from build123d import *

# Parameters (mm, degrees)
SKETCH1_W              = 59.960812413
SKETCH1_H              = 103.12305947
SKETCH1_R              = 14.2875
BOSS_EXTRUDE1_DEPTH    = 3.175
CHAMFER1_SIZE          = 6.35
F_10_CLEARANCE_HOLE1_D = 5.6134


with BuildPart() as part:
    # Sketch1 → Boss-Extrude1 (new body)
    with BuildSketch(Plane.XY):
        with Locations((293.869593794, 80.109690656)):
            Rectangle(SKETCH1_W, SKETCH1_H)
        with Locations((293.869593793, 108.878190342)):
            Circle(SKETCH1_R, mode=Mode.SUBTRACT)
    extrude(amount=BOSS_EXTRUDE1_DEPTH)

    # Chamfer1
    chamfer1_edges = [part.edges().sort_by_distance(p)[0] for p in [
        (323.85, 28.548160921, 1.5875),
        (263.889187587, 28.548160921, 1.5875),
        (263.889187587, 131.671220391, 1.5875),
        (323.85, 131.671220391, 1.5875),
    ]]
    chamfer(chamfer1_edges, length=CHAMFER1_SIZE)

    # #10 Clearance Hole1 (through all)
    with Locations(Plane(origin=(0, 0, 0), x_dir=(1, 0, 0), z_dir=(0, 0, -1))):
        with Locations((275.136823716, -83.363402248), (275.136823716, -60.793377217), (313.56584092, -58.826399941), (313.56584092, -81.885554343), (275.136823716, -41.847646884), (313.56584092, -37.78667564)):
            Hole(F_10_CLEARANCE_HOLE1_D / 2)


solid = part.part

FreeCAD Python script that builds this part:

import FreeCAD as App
import Part
import Sketcher
from FreeCAD import Vector
Q = App.Units.Quantity


def edges_at(feature, points):
    """Names of the edges that pass closest to the given points."""
    edges = feature.Shape.Edges
    near = lambda p: min(range(len(edges)), key=lambda i: edges[i].distToShape(Part.Vertex(*p))[0])
    return sorted({f"Edge{near(p) + 1}" for p in points})

doc = App.newDocument("Part")
body = doc.addObject("PartDesign::Body", "Body")

# Sketch on XY plane
sketch1 = body.newObject("Sketcher::SketchObject", "Sketch")
sketch1.AttachmentSupport = (doc.getObject("XY_Plane"), [""])
sketch1.MapMode = "FlatFace"
sketch1.addGeometry([
    Part.LineSegment(Vector(264, 132, 0), Vector(264, 29, 0)),  # 0
    Part.LineSegment(Vector(264, 29, 0), Vector(324, 29, 0)),  # 1
    Part.LineSegment(Vector(324, 29, 0), Vector(324, 132, 0)),  # 2
    Part.LineSegment(Vector(324, 132, 0), Vector(264, 132, 0)),  # 3
    Part.Circle(Vector(294, 109, 0), Vector(0, 0, 1), 14),  # 4
], False)
sketch1.addConstraint([
    Sketcher.Constraint("Coincident", 0, 2, 1, 1),
    Sketcher.Constraint("Coincident", 1, 2, 2, 1),
    Sketcher.Constraint("Coincident", 2, 2, 3, 1),
    Sketcher.Constraint("Coincident", 3, 2, 0, 1),
    Sketcher.Constraint("Vertical", 0),
    Sketcher.Constraint("Horizontal", 1),
    Sketcher.Constraint("Vertical", 2),
    Sketcher.Constraint("Horizontal", 3),
    Sketcher.Constraint("Diameter", 4, Q("1.125 in")),
    Sketcher.Constraint("DistanceX", -1, 1, 1, 2, Q("12.75 in")),
    Sketcher.Constraint("DistanceY", 0, 2, 0, 1, 103.123059),
    Sketcher.Constraint("DistanceX", 1, 1, 1, 2, 59.960812),
    Sketcher.Constraint("DistanceY", -1, 1, 4, 3, 108.87819),
    Sketcher.Constraint("DistanceY", -1, 1, 0, 2, 28.548161),
    Sketcher.Constraint("DistanceX", -1, 1, 4, 3, 293.869594),
])
pad1 = body.newObject("PartDesign::Pad", "Pad")
pad1.Profile = sketch1
pad1.Length = Q("0.125 in")
doc.recompute()

chamfer = body.newObject("PartDesign::Chamfer", "Chamfer")
chamfer.Base = (pad1, edges_at(pad1, [
    (323.85, 28.548, 1.587),
    (263.889, 28.548, 1.587),
    (263.889, 131.671, 1.587),
    (323.85, 131.671, 1.587),
]))
chamfer.Size = Q("0.25 in")

# Sketch on XY plane
sketch2 = body.newObject("Sketcher::SketchObject", "Sketch001")
sketch2.AttachmentSupport = (doc.getObject("XY_Plane"), [""])
sketch2.MapMode = "FlatFace"
sketch2.addGeometry([
    Part.Circle(Vector(275.1, 83.4, 0), Vector(0, 0, 1), 2.8),  # 0
    Part.Circle(Vector(275.1, 60.8, 0), Vector(0, 0, 1), 2.8),  # 1
    Part.Circle(Vector(313.6, 58.8, 0), Vector(0, 0, 1), 2.8),  # 2
    Part.Circle(Vector(313.6, 81.9, 0), Vector(0, 0, 1), 2.8),  # 3
    Part.Circle(Vector(275.1, 41.8, 0), Vector(0, 0, 1), 2.8),  # 4
    Part.Circle(Vector(313.6, 37.8, 0), Vector(0, 0, 1), 2.8),  # 5
], False)
sketch2.addConstraint([
    Sketcher.Constraint("Equal", 0, 1),
    Sketcher.Constraint("Equal", 1, 2),
    Sketcher.Constraint("Equal", 2, 3),
    Sketcher.Constraint("Equal", 3, 4),
    Sketcher.Constraint("Equal", 4, 5),
    Sketcher.Constraint("Vertical", 0, 3, 1, 3),
    Sketcher.Constraint("Vertical", 2, 3, 3, 3),
    Sketcher.Constraint("Vertical", 1, 3, 4, 3),
    Sketcher.Constraint("Vertical", 3, 3, 5, 3),
    Sketcher.Constraint("Diameter", 0, Q("0.221 in")),
    Sketcher.Constraint("DistanceY", -1, 1, 2, 3, Q("2.316 in")),
    Sketcher.Constraint("DistanceY", 5, 3, 1, 3, 23.006702),
    Sketcher.Constraint("DistanceX", -1, 1, 2, 3, 313.565841),
    Sketcher.Constraint("DistanceY", 4, 3, 1, 3, 18.94573),
    Sketcher.Constraint("DistanceY", 5, 3, 3, 3, 44.098879),
    Sketcher.Constraint("DistanceX", -1, 1, 0, 3, 275.136824),
    Sketcher.Constraint("DistanceY", -1, 1, 0, 3, 83.363402),
    Sketcher.Constraint("DistanceY", -1, 1, 1, 3, 60.793377),
])
doc.recompute()
hole = body.newObject("PartDesign::Hole", "Hole")
hole.Profile = sketch2
hole.ThreadType = "None"
hole.Diameter = Q("0.221 in")
hole.DepthType = "ThroughAll"
hole.Reversed = True

doc.recompute()
